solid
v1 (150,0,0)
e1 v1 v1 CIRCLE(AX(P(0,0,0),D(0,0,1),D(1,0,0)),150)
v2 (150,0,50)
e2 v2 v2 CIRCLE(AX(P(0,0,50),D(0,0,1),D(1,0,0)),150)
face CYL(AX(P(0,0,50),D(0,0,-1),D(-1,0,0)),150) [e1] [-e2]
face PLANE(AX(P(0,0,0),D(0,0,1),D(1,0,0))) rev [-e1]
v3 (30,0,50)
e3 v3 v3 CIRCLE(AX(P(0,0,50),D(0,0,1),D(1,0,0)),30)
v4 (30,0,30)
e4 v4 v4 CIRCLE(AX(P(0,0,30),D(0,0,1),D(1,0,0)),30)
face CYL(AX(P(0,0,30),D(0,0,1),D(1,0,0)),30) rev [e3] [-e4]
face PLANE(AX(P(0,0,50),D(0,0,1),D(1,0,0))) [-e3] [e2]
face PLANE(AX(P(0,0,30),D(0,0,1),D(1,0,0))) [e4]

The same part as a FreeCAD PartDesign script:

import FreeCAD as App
import Part
import Sketcher

V = App.Vector
Q = App.Units.Quantity

doc = App.newDocument("Part")
params = doc.addObject("Spreadsheet::Sheet", "Params")
for row, (alias, value) in enumerate([
    ("sketch1_diameter", "300 mm"),
    ("pad1_length", "50 mm"),
    ("sketch2_diameter", "60 mm"),
    ("pocket1_length", "20 mm"),
], start=1):
    params.set(f"A{row}", alias)
    params.set(f"B{row}", "=" + value)
    params.setAlias(f"B{row}", alias)

body = doc.addObject("PartDesign::Body", "Body")

sketch1 = body.newObject("Sketcher::SketchObject", "Sketch")
sketch1.AttachmentSupport = (doc.getObject("XY_Plane"), [""])
sketch1.MapMode = "FlatFace"
sketch1.addGeometry(Part.Circle(V(0, 0, 0), V(0, 0, 1), 150), False)
sketch1.addConstraint([
    Sketcher.Constraint("Coincident", 0, 3, -1, 1),
    Sketcher.Constraint("Diameter", 0, Q("300 mm")),
])
sketch1.setExpression("Constraints[1]", "Params.sketch1_diameter")
pad1 = body.newObject("PartDesign::Pad", "Pad")
pad1.Profile = sketch1
pad1.setExpression("Length", "Params.pad1_length")

sketch2 = body.newObject("Sketcher::SketchObject", "Sketch001")
sketch2.AttachmentSupport = (doc.getObject("XY_Plane"), [""])
sketch2.MapMode = "FlatFace"
sketch2.AttachmentOffset = App.Placement(V(0, 0, 50), App.Rotation())
sketch2.addGeometry(Part.Circle(V(0, 0, 0), V(0, 0, 1), 30), False)
sketch2.addConstraint([
    Sketcher.Constraint("Coincident", 0, 3, -1, 1),
    Sketcher.Constraint("Diameter", 0, Q("60 mm")),
])
sketch2.setExpression("Constraints[1]", "Params.sketch2_diameter")
pocket1 = body.newObject("PartDesign::Pocket", "Pocket")
pocket1.Profile = sketch2
pocket1.setExpression("Length", "Params.pocket1_length")

doc.recompute()
